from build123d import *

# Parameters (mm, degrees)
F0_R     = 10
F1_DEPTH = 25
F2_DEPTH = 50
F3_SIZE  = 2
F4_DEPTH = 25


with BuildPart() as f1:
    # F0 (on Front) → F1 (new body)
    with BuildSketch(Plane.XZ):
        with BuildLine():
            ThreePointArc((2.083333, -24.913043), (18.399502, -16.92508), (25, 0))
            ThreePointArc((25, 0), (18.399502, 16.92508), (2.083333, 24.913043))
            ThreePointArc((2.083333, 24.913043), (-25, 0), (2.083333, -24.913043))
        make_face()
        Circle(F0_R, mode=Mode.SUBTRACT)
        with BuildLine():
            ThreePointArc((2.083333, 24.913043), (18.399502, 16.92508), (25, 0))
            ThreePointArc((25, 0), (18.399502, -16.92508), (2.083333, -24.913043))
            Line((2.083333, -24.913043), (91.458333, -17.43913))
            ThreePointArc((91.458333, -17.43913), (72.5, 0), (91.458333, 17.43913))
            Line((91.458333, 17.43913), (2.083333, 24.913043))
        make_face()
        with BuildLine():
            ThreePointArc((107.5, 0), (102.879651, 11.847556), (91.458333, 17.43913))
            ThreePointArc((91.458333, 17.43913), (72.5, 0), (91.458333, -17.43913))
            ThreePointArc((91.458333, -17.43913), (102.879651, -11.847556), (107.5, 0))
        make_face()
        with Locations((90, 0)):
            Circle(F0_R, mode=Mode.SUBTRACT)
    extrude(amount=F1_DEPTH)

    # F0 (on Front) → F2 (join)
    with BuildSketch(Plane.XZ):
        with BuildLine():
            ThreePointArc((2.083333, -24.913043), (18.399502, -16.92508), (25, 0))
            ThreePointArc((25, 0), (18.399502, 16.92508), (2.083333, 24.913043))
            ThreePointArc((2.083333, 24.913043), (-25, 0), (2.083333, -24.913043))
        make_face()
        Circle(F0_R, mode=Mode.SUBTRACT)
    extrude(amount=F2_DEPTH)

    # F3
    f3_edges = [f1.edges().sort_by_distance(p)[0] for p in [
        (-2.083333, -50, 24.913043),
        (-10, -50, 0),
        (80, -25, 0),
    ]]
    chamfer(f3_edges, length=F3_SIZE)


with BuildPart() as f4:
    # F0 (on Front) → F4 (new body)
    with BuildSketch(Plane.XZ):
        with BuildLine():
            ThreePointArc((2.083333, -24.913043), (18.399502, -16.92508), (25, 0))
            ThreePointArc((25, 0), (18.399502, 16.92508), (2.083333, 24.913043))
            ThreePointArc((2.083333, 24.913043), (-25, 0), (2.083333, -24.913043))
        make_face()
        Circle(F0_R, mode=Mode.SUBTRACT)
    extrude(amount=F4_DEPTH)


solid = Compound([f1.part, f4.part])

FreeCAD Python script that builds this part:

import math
import FreeCAD as App
import Part
import Sketcher
from FreeCAD import Vector


def edges_at(feature, points):
    """Names of the edges that pass closest to the given points."""
    edges = feature.Shape.Edges
    near = lambda p: min(range(len(edges)), key=lambda i: edges[i].distToShape(Part.Vertex(*p))[0])
    return sorted({f"Edge{near(p) + 1}" for p in points})

doc = App.newDocument("Part")
body = doc.addObject("PartDesign::Body", "Body")

# Sketch on XZ plane
sketch1 = doc.addObject("Sketcher::SketchObject", "Sketch")
body.addObject(sketch1)
sketch1.AttachmentSupport = (doc.XZ_Plane, [""])
sketch1.MapMode = "FlatFace"
sketch1.addGeometry([
    Part.ArcOfCircle(Part.Circle(Vector(0, 0, 0), Vector(0, 0, 1), 25), math.radians(85.219808), math.radians(274.780192)),  # 0
    Part.LineSegment(Vector(2.083333, -24.913043, 0), Vector(91.458333, -17.43913, 0)),  # 1
    Part.ArcOfCircle(Part.Circle(Vector(90, 0, 0), Vector(0, 0, 1), 17.5), math.radians(-85.219809), math.radians(-0.000001)),  # 2
    Part.ArcOfCircle(Part.Circle(Vector(90, 0, 0), Vector(0, 0, 1), 17.5), math.radians(0.000001), math.radians(85.219809)),  # 3
    Part.LineSegment(Vector(91.458333, 17.43913, 0), Vector(2.083333, 24.913043, 0)),  # 4
    Part.Circle(Vector(0, 0, 0), Vector(0, 0, 1), 10),  # 5
    Part.Circle(Vector(90, 0, 0), Vector(0, 0, 1), 10),  # 6
], False)
sketch1.addConstraint([
    Sketcher.Constraint("Tangent", 0, 2, 1, 1),
    Sketcher.Constraint("Tangent", 1, 2, 2, 1),
    Sketcher.Constraint("Tangent", 2, 2, 3, 1),
    Sketcher.Constraint("Tangent", 3, 2, 4, 1),
    Sketcher.Constraint("Tangent", 4, 2, 0, 1),
    Sketcher.Constraint("Coincident", 0, 3, -1, 1),
    Sketcher.Constraint("Coincident", 5, 3, -1, 1),
    Sketcher.Constraint("Coincident", 6, 3, 2, 3),
    Sketcher.Constraint("Equal", 2, 3),
    Sketcher.Constraint("Equal", 5, 6),
    Sketcher.Constraint("PointOnObject", 2, 3, -1),
    Sketcher.Constraint("PointOnObject", 2, 2, -1),
    Sketcher.Constraint("Diameter", 5, 20.0),
    Sketcher.Constraint("Radius", 0, 25.0),
    Sketcher.Constraint("Radius", 2, 17.5),
    Sketcher.Constraint("DistanceX", -1, 1, 2, 3, 90.0),
])
pad1 = doc.addObject("PartDesign::Pad", "Pad")
body.addObject(pad1)
pad1.Profile = sketch1
pad1.Length = 25

# Sketch on XZ plane
sketch2 = doc.addObject("Sketcher::SketchObject", "Sketch001")
body.addObject(sketch2)
sketch2.AttachmentSupport = (doc.XZ_Plane, [""])
sketch2.MapMode = "FlatFace"
sketch2.addGeometry([
    Part.ArcOfCircle(Part.Circle(Vector(0.000001, -0.000001, 0), Vector(0, 0, 1), 24.999999), math.radians(-85.219811), math.radians(0.000001)),
    Part.ArcOfCircle(Part.Circle(Vector(0.000001, 0.000001, 0), Vector(0, 0, 1), 24.999999), math.radians(-0.000001), math.radians(85.219811)),
    Part.ArcOfCircle(Part.Circle(Vector(0, 0, 0), Vector(0, 0, 1), 25), math.radians(85.219808), math.radians(274.780192)),
    Part.Circle(Vector(0, 0, 0), Vector(0, 0, 1), 10),
], False)
sketch2.addConstraint([
    Sketcher.Constraint("Tangent", 0, 2, 1, 1),
    Sketcher.Constraint("Tangent", 1, 2, 2, 1),
    Sketcher.Constraint("Tangent", 2, 2, 0, 1),
    Sketcher.Constraint("Coincident", 0, 3, -1, 1),
    Sketcher.Constraint("Coincident", 3, 3, -1, 1),
    Sketcher.Constraint("PointOnObject", 0, 2, -1),
    Sketcher.Constraint("Vertical", 1, 2, 2, 2),
    Sketcher.Constraint("Diameter", 3, 20.0),
    Sketcher.Constraint("Radius", 0, 24.999999),
    Sketcher.Constraint("DistanceX", -1, 1, 1, 2, 2.083333),
])
pad2 = doc.addObject("PartDesign::Pad", "Pad001")
body.addObject(pad2)
pad2.Profile = sketch2
pad2.Length = 50
doc.recompute()

chamfer = doc.addObject("PartDesign::Chamfer", "Chamfer")
body.addObject(chamfer)
chamfer.Base = (pad2, edges_at(pad2, [(-25, -50, 0), (-10, -50, 0), (80, -25, 0)]))
chamfer.Size = 2
body2 = doc.addObject("PartDesign::Body", "Body001")

# Sketch on XZ plane
sketch3 = doc.addObject("Sketcher::SketchObject", "Sketch002")
body2.addObject(sketch3)
sketch3.AttachmentSupport = (doc.getObject("XZ_Plane001"), [""])
sketch3.MapMode = "FlatFace"
sketch3.addGeometry([
    Part.ArcOfCircle(Part.Circle(Vector(0.000001, -0.000001, 0), Vector(0, 0, 1), 24.999999), math.radians(-85.219811), math.radians(0.000001)),
    Part.ArcOfCircle(Part.Circle(Vector(0.000001, 0.000001, 0), Vector(0, 0, 1), 24.999999), math.radians(-0.000001), math.radians(85.219811)),
    Part.ArcOfCircle(Part.Circle(Vector(0, 0, 0), Vector(0, 0, 1), 25), math.radians(85.219808), math.radians(274.780192)),
    Part.Circle(Vector(0, 0, 0), Vector(0, 0, 1), 10),
], False)
sketch3.addConstraint([
    Sketcher.Constraint("Tangent", 0, 2, 1, 1),
    Sketcher.Constraint("Tangent", 1, 2, 2, 1),
    Sketcher.Constraint("Tangent", 2, 2, 0, 1),
    Sketcher.Constraint("Coincident", 0, 3, -1, 1),
    Sketcher.Constraint("Coincident", 3, 3, -1, 1),
    Sketcher.Constraint("PointOnObject", 0, 2, -1),
    Sketcher.Constraint("Vertical", 1, 2, 2, 2),
    Sketcher.Constraint("Diameter", 3, 20.0),
    Sketcher.Constraint("Radius", 0, 24.999999),
    Sketcher.Constraint("DistanceX", -1, 1, 1, 2, 2.083333),
])
pad3 = doc.addObject("PartDesign::Pad", "Pad002")
body2.addObject(pad3)
pad3.Profile = sketch3
pad3.Length = 25

doc.recompute()
